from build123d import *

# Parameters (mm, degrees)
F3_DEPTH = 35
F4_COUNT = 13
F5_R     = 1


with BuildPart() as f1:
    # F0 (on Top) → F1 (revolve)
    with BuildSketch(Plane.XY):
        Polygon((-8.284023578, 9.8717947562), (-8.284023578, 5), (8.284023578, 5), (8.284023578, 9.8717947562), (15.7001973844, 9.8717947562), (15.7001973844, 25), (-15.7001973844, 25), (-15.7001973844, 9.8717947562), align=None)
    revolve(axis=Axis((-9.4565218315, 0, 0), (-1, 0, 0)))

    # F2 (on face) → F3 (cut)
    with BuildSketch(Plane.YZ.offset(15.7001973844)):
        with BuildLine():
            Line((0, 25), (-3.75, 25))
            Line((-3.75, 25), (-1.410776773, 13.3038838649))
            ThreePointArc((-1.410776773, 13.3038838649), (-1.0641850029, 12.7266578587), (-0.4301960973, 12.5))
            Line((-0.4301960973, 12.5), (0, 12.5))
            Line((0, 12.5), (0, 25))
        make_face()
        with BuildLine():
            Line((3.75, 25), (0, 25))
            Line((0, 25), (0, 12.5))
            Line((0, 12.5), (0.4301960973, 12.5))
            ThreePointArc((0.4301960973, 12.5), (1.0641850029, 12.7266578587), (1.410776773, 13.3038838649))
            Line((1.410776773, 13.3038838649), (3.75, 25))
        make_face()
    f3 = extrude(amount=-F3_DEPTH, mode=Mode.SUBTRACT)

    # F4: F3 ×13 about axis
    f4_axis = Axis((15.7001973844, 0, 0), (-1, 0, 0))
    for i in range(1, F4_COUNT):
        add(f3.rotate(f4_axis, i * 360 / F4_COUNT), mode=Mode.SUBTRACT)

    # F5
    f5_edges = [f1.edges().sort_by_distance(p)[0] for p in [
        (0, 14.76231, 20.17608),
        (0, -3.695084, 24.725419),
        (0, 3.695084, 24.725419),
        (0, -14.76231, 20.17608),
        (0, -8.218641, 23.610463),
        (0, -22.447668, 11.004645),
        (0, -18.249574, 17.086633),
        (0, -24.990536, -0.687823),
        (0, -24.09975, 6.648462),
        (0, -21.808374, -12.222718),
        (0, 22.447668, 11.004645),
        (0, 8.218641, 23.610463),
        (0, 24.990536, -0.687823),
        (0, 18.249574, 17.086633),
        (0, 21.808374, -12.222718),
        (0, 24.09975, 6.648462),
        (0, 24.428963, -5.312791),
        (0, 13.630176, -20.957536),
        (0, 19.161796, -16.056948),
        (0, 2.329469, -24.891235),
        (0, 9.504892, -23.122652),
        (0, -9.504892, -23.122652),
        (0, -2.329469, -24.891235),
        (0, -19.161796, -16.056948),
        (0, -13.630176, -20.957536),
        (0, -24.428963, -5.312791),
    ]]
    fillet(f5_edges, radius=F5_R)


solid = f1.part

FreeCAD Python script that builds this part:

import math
import FreeCAD as App
import Part
import Sketcher


def edges_at(feature, points):
    """Names of the edges that pass closest to the given points."""
    edges = feature.Shape.Edges
    near = lambda p: min(range(len(edges)), key=lambda i: edges[i].distToShape(Part.Vertex(*p))[0])
    return sorted({f"Edge{near(p) + 1}" for p in points})


def add_polygon(sketch, points):
    """Adds a closed chain of lines whose ends are joined by coincident constraints."""
    first, n = sketch.GeometryCount, len(points)
    for a, b in zip(points, points[1:] + points[:1]):
        sketch.addGeometry(Part.LineSegment(App.Vector(*a, 0), App.Vector(*b, 0)), False)
    for i in range(n):
        sketch.addConstraint(Sketcher.Constraint("Coincident", first + i, 2, first + (i + 1) % n, 1))

doc = App.newDocument("Part")
body = doc.addObject("PartDesign::Body", "Body")

sketch1 = doc.addObject("Sketcher::SketchObject", "Sketch")
body.addObject(sketch1)
sketch1.AttachmentSupport = (doc.XY_Plane, [""])
sketch1.MapMode = "FlatFace"
add_polygon(sketch1, [(-8.284024, 9.871795), (-8.284024, 5), (8.284024, 5), (8.284024, 9.871795), (15.700197, 9.871795), (15.700197, 25), (-15.700197, 25), (-15.700197, 9.871795)])
sketch1.addConstraint(Sketcher.Constraint("Vertical", 0))
sketch1.addConstraint(Sketcher.Constraint("Horizontal", 1))
sketch1.addConstraint(Sketcher.Constraint("Vertical", 2))
sketch1.addConstraint(Sketcher.Constraint("Horizontal", 3))
sketch1.addConstraint(Sketcher.Constraint("Vertical", 4))
sketch1.addConstraint(Sketcher.Constraint("Horizontal", 5))
sketch1.addConstraint(Sketcher.Constraint("Vertical", 6))
sketch1.addConstraint(Sketcher.Constraint("Horizontal", 7))
sketch1.addConstraint(Sketcher.Constraint("Symmetric", 3, 2, 6, 2, -2))
sketch1.addConstraint(Sketcher.Constraint("Equal", 3, 7))
sketch1.addConstraint(Sketcher.Constraint("DistanceY", -1, 1, 0, 2, 5.0))
sketch1.addConstraint(Sketcher.Constraint("DistanceY", -1, 1, 4, 2, 25.0))
sketch1.addConstraint(Sketcher.Constraint("DistanceX", 1, 1, 1, 2, 16.568047))
sketch1.addConstraint(Sketcher.Constraint("DistanceX", 3, 1, 3, 2, 7.416174))
sketch1.addConstraint(Sketcher.Constraint("DistanceY", 0, 2, 0, 1, 4.871795))
revolution = doc.addObject("PartDesign::Revolution", "Revolution")
body.addObject(revolution)
revolution.Profile = sketch1
revolution.ReferenceAxis = (sketch1, ["H_Axis"])
revolution.Angle = 360

sketch2 = doc.addObject("Sketcher::SketchObject", "Sketch001")
body.addObject(sketch2)
sketch2.AttachmentSupport = (doc.YZ_Plane, [""])
sketch2.MapMode = "FlatFace"
sketch2.AttachmentOffset = App.Placement(App.Vector(0, 0, 15.700197), App.Rotation())
sketch2.addGeometry(Part.LineSegment(App.Vector(-3.75, 25, 0), App.Vector(-1.410777, 13.303884, 0)), False)
sketch2.addGeometry(Part.ArcOfCircle(Part.Circle(App.Vector(-0.430196, 13.5, 0), App.Vector(0, 0, 1), 1), math.radians(-168.690068), math.radians(-90)), False)
sketch2.addGeometry(Part.LineSegment(App.Vector(-0.430196, 12.5, 0), App.Vector(0.430196, 12.5, 0)), False)
sketch2.addGeometry(Part.ArcOfCircle(Part.Circle(App.Vector(0.430196, 13.5, 0), App.Vector(0, 0, 1), 1), math.radians(-90), math.radians(-11.309932)), False)
sketch2.addGeometry(Part.LineSegment(App.Vector(1.410777, 13.303884, 0), App.Vector(3.75, 25, 0)), False)
sketch2.addGeometry(Part.LineSegment(App.Vector(3.75, 25, 0), App.Vector(-3.75, 25, 0)), False)
sketch2.addConstraint(Sketcher.Constraint("Tangent", 0, 2, 1, 1))
sketch2.addConstraint(Sketcher.Constraint("Tangent", 1, 2, 2, 1))
sketch2.addConstraint(Sketcher.Constraint("Tangent", 2, 2, 3, 1))
sketch2.addConstraint(Sketcher.Constraint("Tangent", 3, 2, 4, 1))
sketch2.addConstraint(Sketcher.Constraint("Coincident", 4, 2, 5, 1))
sketch2.addConstraint(Sketcher.Constraint("Coincident", 5, 2, 0, 1))
sketch2.addConstraint(Sketcher.Constraint("Horizontal", 2))
sketch2.addConstraint(Sketcher.Constraint("Horizontal", 5))
sketch2.addConstraint(Sketcher.Constraint("Equal", 1, 3))
sketch2.addConstraint(Sketcher.Constraint("Symmetric", 0, 2, 3, 2, -2))
sketch2.addConstraint(Sketcher.Constraint("Radius", 1, 1.0))
sketch2.addConstraint(Sketcher.Constraint("DistanceX", 5, 2, 5, 1, 7.5))
sketch2.addConstraint(Sketcher.Constraint("DistanceY", -1, 1, 4, 2, 25.0))
sketch2.addConstraint(Sketcher.Constraint("DistanceY", -1, 1, 1, 3, 13.5))
sketch2.addConstraint(Sketcher.Constraint("DistanceX", 2, 1, 2, 2, 0.860392))
pocket1 = doc.addObject("PartDesign::Pocket", "Pocket")
body.addObject(pocket1)
pocket1.Profile = sketch2
pocket1.Length = 35
doc.recompute()

polarpattern = doc.addObject("PartDesign::PolarPattern", "PolarPattern")
body.addObject(polarpattern)
polarpattern.Originals = [pocket1]
polarpattern.Axis = (doc.X_Axis, [""])
polarpattern.Angle = 360
polarpattern.Occurrences = 13
body.Tip = polarpattern
doc.recompute()

fillet = doc.addObject("PartDesign::Fillet", "Fillet")
body.addObject(fillet)
fillet.Base = (polarpattern, edges_at(polarpattern, [
    (0, 14.762, 20.176),
    (0, -3.695, 24.725),
    (0, 3.695, 24.725),
    (0, -14.762, 20.176),
    (0, -8.219, 23.61),
    (0, -22.448, 11.005),
    (0, -18.25, 17.087),
    (0, -24.991, -0.688),
    (0, -24.1, 6.648),
    (0, -21.808, -12.223),
    (0, 22.448, 11.005),
    (0, 8.219, 23.61),
    (0, 24.991, -0.688),
    (0, 18.25, 17.087),
    (0, 21.808, -12.223),
    (0, 24.1, 6.648),
    (0, 24.429, -5.313),
    (0, 13.63, -20.958),
    (0, 19.162, -16.057),
    (0, 2.329, -24.891),
    (0, 9.505, -23.123),
    (0, -9.505, -23.123),
    (0, -2.329, -24.891),
    (0, -19.162, -16.057),
    (0, -13.63, -20.958),
    (0, -24.429, -5.313),
]))
fillet.Radius = 1

doc.recompute()
